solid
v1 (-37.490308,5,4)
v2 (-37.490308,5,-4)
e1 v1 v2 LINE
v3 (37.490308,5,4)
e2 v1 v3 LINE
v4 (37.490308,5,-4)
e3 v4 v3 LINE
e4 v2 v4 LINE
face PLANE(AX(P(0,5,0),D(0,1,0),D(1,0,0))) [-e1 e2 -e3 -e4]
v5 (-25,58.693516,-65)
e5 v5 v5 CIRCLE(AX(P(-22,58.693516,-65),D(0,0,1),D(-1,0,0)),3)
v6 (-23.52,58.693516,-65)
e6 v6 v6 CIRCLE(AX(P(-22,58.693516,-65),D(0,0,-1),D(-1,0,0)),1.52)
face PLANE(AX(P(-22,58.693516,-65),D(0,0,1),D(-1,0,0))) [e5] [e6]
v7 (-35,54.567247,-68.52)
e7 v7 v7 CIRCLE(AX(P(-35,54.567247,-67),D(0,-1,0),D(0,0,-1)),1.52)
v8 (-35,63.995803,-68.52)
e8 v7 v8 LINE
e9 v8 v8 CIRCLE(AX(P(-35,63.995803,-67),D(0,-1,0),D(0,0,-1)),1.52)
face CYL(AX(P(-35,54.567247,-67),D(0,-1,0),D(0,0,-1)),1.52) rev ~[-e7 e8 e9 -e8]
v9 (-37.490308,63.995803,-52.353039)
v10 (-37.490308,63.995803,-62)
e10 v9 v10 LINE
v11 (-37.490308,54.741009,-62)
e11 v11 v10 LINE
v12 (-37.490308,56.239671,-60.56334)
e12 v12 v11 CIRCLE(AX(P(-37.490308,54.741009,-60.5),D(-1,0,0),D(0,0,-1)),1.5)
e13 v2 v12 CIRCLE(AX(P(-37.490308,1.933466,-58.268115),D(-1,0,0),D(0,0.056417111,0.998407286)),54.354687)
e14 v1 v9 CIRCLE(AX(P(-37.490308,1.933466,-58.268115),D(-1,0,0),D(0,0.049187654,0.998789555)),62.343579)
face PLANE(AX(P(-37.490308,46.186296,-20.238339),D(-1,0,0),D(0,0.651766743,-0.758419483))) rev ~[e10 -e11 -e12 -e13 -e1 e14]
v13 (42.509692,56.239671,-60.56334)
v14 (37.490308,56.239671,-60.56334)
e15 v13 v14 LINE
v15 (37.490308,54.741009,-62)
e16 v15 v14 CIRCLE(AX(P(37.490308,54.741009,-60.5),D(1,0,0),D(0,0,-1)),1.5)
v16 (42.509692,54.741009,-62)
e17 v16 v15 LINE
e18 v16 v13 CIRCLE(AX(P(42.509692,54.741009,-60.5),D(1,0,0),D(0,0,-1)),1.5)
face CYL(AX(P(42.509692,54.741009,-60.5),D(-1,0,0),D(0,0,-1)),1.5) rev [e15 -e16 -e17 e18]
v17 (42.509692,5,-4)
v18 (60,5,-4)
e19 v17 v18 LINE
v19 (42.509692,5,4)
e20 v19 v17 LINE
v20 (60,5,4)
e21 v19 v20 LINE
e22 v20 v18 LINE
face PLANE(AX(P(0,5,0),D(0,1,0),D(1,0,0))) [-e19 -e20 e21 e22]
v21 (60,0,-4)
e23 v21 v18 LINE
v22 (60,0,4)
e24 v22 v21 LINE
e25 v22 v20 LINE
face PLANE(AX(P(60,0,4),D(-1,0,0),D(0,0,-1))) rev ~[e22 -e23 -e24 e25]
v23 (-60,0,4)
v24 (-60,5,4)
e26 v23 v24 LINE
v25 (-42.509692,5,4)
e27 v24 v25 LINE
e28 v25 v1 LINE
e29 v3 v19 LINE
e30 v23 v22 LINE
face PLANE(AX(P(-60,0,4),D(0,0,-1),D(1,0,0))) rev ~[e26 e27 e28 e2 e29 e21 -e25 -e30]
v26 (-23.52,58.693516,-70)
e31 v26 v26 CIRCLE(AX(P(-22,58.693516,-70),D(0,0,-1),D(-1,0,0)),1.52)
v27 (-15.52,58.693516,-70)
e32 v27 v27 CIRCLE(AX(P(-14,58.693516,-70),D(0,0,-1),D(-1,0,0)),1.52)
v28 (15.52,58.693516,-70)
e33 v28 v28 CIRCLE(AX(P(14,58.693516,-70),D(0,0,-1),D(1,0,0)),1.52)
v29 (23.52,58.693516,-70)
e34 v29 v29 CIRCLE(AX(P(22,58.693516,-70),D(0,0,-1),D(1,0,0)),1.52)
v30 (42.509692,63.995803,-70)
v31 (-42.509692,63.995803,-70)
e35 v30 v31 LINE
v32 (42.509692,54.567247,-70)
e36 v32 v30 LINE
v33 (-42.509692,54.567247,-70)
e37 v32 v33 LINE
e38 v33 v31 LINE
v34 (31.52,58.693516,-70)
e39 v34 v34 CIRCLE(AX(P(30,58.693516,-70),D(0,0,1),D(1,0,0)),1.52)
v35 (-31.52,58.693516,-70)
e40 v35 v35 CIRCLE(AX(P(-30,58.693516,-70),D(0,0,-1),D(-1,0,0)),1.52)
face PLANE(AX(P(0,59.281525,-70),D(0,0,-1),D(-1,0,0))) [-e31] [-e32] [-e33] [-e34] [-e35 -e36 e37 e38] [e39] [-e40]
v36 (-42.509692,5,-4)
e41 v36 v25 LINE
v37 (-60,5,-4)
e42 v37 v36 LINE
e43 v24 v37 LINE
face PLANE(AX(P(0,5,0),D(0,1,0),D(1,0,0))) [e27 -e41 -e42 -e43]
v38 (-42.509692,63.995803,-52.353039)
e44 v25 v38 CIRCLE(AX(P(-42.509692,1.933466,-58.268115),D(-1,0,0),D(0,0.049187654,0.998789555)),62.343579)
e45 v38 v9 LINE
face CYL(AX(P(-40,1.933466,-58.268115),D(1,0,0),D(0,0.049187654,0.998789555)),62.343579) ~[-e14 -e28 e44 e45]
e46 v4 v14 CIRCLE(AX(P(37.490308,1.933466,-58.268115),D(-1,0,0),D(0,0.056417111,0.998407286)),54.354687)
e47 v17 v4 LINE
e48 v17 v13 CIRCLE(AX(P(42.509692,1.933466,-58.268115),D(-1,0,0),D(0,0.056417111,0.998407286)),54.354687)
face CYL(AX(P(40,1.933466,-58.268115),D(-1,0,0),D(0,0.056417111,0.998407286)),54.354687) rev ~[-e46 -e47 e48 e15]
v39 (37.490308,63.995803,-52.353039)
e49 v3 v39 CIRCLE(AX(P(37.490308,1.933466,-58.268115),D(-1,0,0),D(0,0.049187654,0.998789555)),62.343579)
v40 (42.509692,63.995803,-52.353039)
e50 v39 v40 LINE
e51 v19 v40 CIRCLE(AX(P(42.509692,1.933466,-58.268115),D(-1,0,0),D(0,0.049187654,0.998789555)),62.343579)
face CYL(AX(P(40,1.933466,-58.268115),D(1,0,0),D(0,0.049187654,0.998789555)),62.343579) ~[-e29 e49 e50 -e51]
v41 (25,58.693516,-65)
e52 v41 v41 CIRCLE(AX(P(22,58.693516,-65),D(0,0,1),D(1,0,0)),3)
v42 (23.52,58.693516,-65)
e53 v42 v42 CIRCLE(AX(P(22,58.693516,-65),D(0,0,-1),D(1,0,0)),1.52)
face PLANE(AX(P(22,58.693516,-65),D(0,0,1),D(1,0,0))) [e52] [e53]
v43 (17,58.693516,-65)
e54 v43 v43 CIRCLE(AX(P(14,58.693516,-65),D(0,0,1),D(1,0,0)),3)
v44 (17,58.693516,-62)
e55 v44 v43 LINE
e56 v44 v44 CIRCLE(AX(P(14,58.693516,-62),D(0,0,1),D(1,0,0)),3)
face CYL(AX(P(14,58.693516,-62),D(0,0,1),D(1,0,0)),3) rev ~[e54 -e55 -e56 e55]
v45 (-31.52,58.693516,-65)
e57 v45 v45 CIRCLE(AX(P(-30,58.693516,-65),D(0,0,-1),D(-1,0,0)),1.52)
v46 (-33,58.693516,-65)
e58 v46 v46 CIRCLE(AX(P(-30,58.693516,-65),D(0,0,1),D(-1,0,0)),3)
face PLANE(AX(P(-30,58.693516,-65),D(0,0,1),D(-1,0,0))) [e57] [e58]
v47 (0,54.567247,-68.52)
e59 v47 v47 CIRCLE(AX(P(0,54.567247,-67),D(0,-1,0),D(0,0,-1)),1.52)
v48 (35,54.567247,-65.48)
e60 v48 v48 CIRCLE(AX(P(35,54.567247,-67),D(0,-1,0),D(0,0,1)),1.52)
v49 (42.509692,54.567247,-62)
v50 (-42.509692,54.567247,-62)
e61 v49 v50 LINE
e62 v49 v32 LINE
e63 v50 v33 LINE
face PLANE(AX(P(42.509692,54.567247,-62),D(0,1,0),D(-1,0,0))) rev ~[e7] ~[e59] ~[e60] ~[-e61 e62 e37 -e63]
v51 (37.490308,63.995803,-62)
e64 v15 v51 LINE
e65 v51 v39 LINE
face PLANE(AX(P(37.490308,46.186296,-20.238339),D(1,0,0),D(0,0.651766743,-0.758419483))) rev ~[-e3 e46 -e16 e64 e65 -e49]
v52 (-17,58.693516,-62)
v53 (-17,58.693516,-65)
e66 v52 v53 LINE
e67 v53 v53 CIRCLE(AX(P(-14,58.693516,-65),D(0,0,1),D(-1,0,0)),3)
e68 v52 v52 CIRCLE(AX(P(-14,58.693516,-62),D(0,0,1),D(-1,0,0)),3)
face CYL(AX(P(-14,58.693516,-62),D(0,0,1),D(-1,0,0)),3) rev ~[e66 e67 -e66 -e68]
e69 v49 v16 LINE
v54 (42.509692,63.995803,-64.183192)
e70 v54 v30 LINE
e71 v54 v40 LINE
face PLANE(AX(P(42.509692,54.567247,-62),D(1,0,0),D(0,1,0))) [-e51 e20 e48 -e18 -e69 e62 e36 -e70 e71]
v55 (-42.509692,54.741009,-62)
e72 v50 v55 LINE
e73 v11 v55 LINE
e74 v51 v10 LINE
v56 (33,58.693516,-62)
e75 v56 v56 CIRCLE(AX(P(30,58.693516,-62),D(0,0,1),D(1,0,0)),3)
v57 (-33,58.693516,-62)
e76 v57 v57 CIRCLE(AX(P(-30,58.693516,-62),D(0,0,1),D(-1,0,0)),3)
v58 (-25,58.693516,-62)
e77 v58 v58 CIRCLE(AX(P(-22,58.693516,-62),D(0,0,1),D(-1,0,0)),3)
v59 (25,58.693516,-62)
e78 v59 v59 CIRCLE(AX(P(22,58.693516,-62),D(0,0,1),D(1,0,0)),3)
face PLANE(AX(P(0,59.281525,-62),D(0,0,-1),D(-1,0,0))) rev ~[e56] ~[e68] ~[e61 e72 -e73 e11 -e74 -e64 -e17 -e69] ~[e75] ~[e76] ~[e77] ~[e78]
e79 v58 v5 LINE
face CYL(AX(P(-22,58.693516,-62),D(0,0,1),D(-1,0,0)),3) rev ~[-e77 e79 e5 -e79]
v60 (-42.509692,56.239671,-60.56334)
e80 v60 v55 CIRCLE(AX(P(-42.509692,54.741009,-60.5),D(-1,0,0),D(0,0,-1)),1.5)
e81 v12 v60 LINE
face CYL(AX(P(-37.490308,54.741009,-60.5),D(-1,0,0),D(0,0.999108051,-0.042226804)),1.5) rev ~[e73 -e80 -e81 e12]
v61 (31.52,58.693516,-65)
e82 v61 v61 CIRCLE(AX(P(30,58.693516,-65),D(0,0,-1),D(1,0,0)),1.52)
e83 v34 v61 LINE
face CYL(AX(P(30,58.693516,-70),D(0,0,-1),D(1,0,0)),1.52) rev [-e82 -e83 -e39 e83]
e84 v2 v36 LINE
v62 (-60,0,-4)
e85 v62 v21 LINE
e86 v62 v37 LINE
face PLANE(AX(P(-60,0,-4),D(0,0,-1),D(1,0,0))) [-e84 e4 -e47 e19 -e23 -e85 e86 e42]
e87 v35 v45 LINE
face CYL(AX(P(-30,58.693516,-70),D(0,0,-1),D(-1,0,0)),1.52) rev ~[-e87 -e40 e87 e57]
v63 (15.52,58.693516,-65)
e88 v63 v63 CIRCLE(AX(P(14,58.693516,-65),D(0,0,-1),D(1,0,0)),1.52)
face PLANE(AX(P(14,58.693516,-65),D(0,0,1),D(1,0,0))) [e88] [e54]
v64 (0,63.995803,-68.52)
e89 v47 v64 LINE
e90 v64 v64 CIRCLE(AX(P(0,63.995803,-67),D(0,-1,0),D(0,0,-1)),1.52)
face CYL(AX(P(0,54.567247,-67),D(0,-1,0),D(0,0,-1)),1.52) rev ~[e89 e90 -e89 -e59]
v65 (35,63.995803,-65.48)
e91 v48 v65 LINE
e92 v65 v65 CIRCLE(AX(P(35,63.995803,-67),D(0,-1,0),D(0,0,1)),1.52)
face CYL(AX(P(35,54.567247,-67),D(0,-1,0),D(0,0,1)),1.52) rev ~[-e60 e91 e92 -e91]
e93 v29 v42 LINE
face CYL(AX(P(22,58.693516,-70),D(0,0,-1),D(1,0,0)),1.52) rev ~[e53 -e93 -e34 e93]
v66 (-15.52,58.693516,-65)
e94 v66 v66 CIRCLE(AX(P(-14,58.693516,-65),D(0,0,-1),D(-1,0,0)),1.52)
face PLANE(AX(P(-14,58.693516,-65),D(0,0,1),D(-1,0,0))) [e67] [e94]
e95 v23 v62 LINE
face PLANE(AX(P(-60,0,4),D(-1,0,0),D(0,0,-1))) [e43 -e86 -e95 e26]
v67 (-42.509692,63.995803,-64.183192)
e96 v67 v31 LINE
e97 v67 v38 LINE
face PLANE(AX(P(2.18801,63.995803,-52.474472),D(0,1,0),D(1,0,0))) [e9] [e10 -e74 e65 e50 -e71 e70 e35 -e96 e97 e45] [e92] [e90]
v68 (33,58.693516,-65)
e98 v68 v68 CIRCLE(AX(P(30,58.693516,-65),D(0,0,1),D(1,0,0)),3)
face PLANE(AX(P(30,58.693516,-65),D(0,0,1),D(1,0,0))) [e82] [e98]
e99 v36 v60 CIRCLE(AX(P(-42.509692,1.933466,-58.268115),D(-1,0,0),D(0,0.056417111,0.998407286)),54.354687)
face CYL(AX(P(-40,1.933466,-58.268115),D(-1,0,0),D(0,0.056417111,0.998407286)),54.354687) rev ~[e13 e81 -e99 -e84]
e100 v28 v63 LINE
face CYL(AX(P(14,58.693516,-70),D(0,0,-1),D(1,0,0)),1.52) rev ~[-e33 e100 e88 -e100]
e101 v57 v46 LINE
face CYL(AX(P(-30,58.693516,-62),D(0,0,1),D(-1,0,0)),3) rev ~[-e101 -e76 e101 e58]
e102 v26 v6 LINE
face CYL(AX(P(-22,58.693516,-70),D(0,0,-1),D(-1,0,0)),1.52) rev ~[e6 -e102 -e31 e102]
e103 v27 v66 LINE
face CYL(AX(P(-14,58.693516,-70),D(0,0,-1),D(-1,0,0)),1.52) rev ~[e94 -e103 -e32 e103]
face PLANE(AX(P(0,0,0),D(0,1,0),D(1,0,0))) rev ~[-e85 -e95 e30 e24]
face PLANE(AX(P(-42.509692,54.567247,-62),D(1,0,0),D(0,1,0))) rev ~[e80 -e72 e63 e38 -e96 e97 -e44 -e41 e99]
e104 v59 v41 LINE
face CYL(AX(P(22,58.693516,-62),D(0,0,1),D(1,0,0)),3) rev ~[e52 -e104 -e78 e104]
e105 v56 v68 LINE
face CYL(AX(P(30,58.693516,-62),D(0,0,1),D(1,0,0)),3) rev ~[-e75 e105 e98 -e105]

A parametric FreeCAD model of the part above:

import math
import FreeCAD as App
import Part
import Sketcher
from FreeCAD import Vector


def edges_at(feature, points):
    """Names of the edges that pass closest to the given points."""
    edges = feature.Shape.Edges
    near = lambda p: min(range(len(edges)), key=lambda i: edges[i].distToShape(Part.Vertex(*p))[0])
    return sorted({f"Edge{near(p) + 1}" for p in points})

doc = App.newDocument("Part")
body = doc.addObject("PartDesign::Body", "Body")

sketch1 = body.newObject("Sketcher::SketchObject", "Sketch")
sketch1.AttachmentSupport = (doc.getObject("XZ_Plane"), [""])
sketch1.MapMode = "FlatFace"
sketch1.addGeometry([
    Part.LineSegment(Vector(-60, -4, 0), Vector(-60, 4, 0)),
    Part.LineSegment(Vector(-60, 4, 0), Vector(60, 4, 0)),
    Part.LineSegment(Vector(60, 4, 0), Vector(60, -4, 0)),
    Part.LineSegment(Vector(60, -4, 0), Vector(-60, -4, 0)),
], False)
sketch1.addConstraint([
    Sketcher.Constraint("Coincident", 0, 2, 1, 1),
    Sketcher.Constraint("Coincident", 1, 2, 2, 1),
    Sketcher.Constraint("Coincident", 2, 2, 3, 1),
    Sketcher.Constraint("Coincident", 3, 2, 0, 1),
    Sketcher.Constraint("Vertical", 0),
    Sketcher.Constraint("Horizontal", 1),
    Sketcher.Constraint("Vertical", 2),
    Sketcher.Constraint("Horizontal", 3),
    Sketcher.Constraint("Symmetric", 0, 2, 2, 2, -1, 1),
    Sketcher.Constraint("DistanceX", 1, 1, 1, 2, 120.0),
    Sketcher.Constraint("DistanceY", 0, 1, 0, 2, 8.0),
])
pad1 = body.newObject("PartDesign::Pad", "Pad")
pad1.Profile = sketch1
pad1.Length = 5
pad1.Reversed = True

sketch2 = body.newObject("Sketcher::SketchObject", "Sketch001")
sketch2.AttachmentSupport = (doc.getObject("XZ_Plane"), [""])
sketch2.MapMode = "FlatFace"
sketch2.AttachmentOffset = App.Placement(Vector(0, 0, -5), App.Rotation())
sketch2.addGeometry([
    Part.LineSegment(Vector(-42.509692, -4, 0), Vector(-42.509692, 4, 0)),
    Part.LineSegment(Vector(-42.509692, 4, 0), Vector(-37.490308, 4, 0)),
    Part.LineSegment(Vector(-37.490308, 4, 0), Vector(-37.490308, -4, 0)),
    Part.LineSegment(Vector(-37.490308, -4, 0), Vector(-42.509692, -4, 0)),
], False)
sketch2.addConstraint([
    Sketcher.Constraint("Coincident", 0, 2, 1, 1),
    Sketcher.Constraint("Coincident", 1, 2, 2, 1),
    Sketcher.Constraint("Coincident", 2, 2, 3, 1),
    Sketcher.Constraint("Coincident", 3, 2, 0, 1),
    Sketcher.Constraint("Vertical", 0),
    Sketcher.Constraint("Horizontal", 1),
    Sketcher.Constraint("Vertical", 2),
    Sketcher.Constraint("Horizontal", 3),
    Sketcher.Constraint("DistanceY", 0, 1, 0, 2, 8.0),
    Sketcher.Constraint("DistanceY", -1, 1, 0, 2, 4.0),
    Sketcher.Constraint("DistanceX", 1, 1, 1, 2, 5.019385),
    Sketcher.Constraint("DistanceX", 0, 2, -1, 1, 42.509692),
])

sketch3 = body.newObject("Sketcher::SketchObject", "Sketch002")
sketch3.AttachmentSupport = (doc.getObject("YZ_Plane"), [""])
sketch3.MapMode = "FlatFace"
sketch3.AttachmentOffset = App.Placement(Vector(0, 0, -40), App.Rotation())
sketch3.addGeometry(Part.ArcOfCircle(Part.Circle(Vector(1.933466, -58.268115, 0), Vector(0, 0, 1), 58.348752), math.radians(-5.637538), math.radians(86.987417)), False)
sketch3.addConstraint([
    Sketcher.Constraint("PointOnObject", 0, 2, -1),
    Sketcher.Constraint("DistanceX", -1, 1, 0, 1, 60.0),
    Sketcher.Constraint("DistanceY", 0, 1, -1, 1, 64.0),
    Sketcher.Constraint("DistanceX", -1, 1, 0, 2, 5.0),
    Sketcher.Constraint("Radius", 0, 58.348752),
])
doc.recompute()

additivepipe = body.newObject("PartDesign::AdditivePipe", "AdditivePipe")
additivepipe.Profile = sketch2
additivepipe.Spine = (sketch3, ["Edge1"])
doc.recompute()

linearpattern = body.newObject("PartDesign::LinearPattern", "LinearPattern")
linearpattern.Originals = [additivepipe]
linearpattern.Direction = (doc.getObject("X_Axis"), [""])
linearpattern.Mode = "offset"
linearpattern.Offset = 80
linearpattern.Occurrences = 2
body.Tip = linearpattern

sketch4 = body.newObject("Sketcher::SketchObject", "Sketch003")
sketch4.AttachmentSupport = (doc.getObject("XY_Plane"), [""])
sketch4.MapMode = "FlatFace"
sketch4.AttachmentOffset = App.Placement(Vector(0, 0, -64), App.Rotation())
sketch4.addGeometry([
    Part.LineSegment(Vector(42.509692, 63.995803, 0), Vector(42.509692, 54.567247, 0)),
    Part.LineSegment(Vector(42.509692, 54.567247, 0), Vector(-42.509692, 54.567247, 0)),
    Part.LineSegment(Vector(-42.509692, 54.567247, 0), Vector(-42.509692, 63.995803, 0)),
    Part.LineSegment(Vector(-42.509692, 63.995803, 0), Vector(42.509692, 63.995803, 0)),
], False)
sketch4.addConstraint([
    Sketcher.Constraint("Coincident", 0, 2, 1, 1),
    Sketcher.Constraint("Coincident", 1, 2, 2, 1),
    Sketcher.Constraint("Coincident", 2, 2, 3, 1),
    Sketcher.Constraint("Coincident", 3, 2, 0, 1),
    Sketcher.Constraint("Vertical", 0),
    Sketcher.Constraint("Horizontal", 1),
    Sketcher.Constraint("Vertical", 2),
    Sketcher.Constraint("Horizontal", 3),
    Sketcher.Constraint("DistanceX", 1, 2, 1, 1, 85.019385),
    Sketcher.Constraint("DistanceY", 0, 2, 0, 1, 9.428556),
    Sketcher.Constraint("DistanceX", -1, 1, 0, 2, 42.509692),
    Sketcher.Constraint("DistanceY", -1, 1, 0, 2, 54.567247),
])
pad2 = body.newObject("PartDesign::Pad", "Pad001")
pad2.Profile = sketch4
pad2.Type = "TwoLengths"
pad2.Length = 6
pad2.Length2 = 2
pad2.Reversed = True

sketch5 = body.newObject("Sketcher::SketchObject", "Sketch004")
sketch5.AttachmentSupport = (doc.getObject("XY_Plane"), [""])
sketch5.MapMode = "FlatFace"
sketch5.AttachmentOffset = App.Placement(Vector(0, 0, -70), App.Rotation())
sketch5.addGeometry(Part.Circle(Vector(-30, 58.693516, 0), Vector(0, 0, 1), 1.52), False)
sketch5.addConstraint([
    Sketcher.Constraint("Diameter", 0, 3.04),
    Sketcher.Constraint("DistanceX", 0, 3, -1, 1, 30.0),
    Sketcher.Constraint("DistanceY", -1, 1, 0, 3, 58.693516),
])
pocket1 = body.newObject("PartDesign::Pocket", "Pocket")
pocket1.Profile = sketch5
pocket1.Length = 18
pocket1.Reversed = True
doc.recompute()

linearpattern2 = body.newObject("PartDesign::LinearPattern", "LinearPattern001")
linearpattern2.Originals = [pocket1]
linearpattern2.Direction = (doc.getObject("X_Axis"), [""])
linearpattern2.Mode = "offset"
linearpattern2.Offset = 8
linearpattern2.Occurrences = 3
body.Tip = linearpattern2
doc.recompute()

mirrored = body.newObject("PartDesign::Mirrored", "Mirrored")
mirrored.Originals = [pocket1]
mirrored.MirrorPlane = (doc.getObject("YZ_Plane"), [""])
body.Tip = mirrored

sketch6 = body.newObject("Sketcher::SketchObject", "Sketch005")
sketch6.AttachmentSupport = (doc.getObject("XY_Plane"), [""])
sketch6.MapMode = "FlatFace"
sketch6.AttachmentOffset = App.Placement(Vector(0, 0, -70), App.Rotation())
sketch6.addGeometry(Part.Circle(Vector(22, 58.693516, 0), Vector(0, 0, 1), 1.52), False)
sketch6.addConstraint([
    Sketcher.Constraint("Diameter", 0, 3.04),
    Sketcher.Constraint("DistanceX", -1, 1, 0, 3, 22.0),
    Sketcher.Constraint("DistanceY", -1, 1, 0, 3, 58.693516),
])
pocket2 = body.newObject("PartDesign::Pocket", "Pocket001")
pocket2.Profile = sketch6
pocket2.Length = 18
pocket2.Reversed = True

sketch7 = body.newObject("Sketcher::SketchObject", "Sketch006")
sketch7.AttachmentSupport = (doc.getObject("XY_Plane"), [""])
sketch7.MapMode = "FlatFace"
sketch7.AttachmentOffset = App.Placement(Vector(0, 0, -70), App.Rotation())
sketch7.addGeometry(Part.Circle(Vector(14, 58.693516, 0), Vector(0, 0, 1), 1.52), False)
sketch7.addConstraint([
    Sketcher.Constraint("Diameter", 0, 3.04),
    Sketcher.Constraint("DistanceX", -1, 1, 0, 3, 14.0),
    Sketcher.Constraint("DistanceY", -1, 1, 0, 3, 58.693516),
])
pocket3 = body.newObject("PartDesign::Pocket", "Pocket002")
pocket3.Profile = sketch7
pocket3.Length = 18
pocket3.Reversed = True

sketch8 = body.newObject("Sketcher::SketchObject", "Sketch007")
sketch8.AttachmentSupport = (doc.getObject("XZ_Plane"), [""])
sketch8.MapMode = "FlatFace"
sketch8.AttachmentOffset = App.Placement(Vector(0, 0, -54.567247), App.Rotation())
sketch8.addGeometry([
    Part.Circle(Vector(0, -67, 0), Vector(0, 0, 1), 1.52),
    Part.Circle(Vector(-35, -67, 0), Vector(0, 0, 1), 1.52),
    Part.Circle(Vector(35, -67, 0), Vector(0, 0, 1), 1.52),
], False)
sketch8.addConstraint([
    Sketcher.Constraint("Equal", 0, 1),
    Sketcher.Constraint("Equal", 1, 2),
    Sketcher.Constraint("Symmetric", 1, 3, 2, 3, -2),
    Sketcher.Constraint("PointOnObject", 0, 3, -2),
    Sketcher.Constraint("Horizontal", 0, 3, 1, 3),
    Sketcher.Constraint("Diameter", 0, 3.04),
    Sketcher.Constraint("DistanceY", 0, 3, -1, 1, 67.0),
    Sketcher.Constraint("DistanceX", 1, 3, -1, 1, 35.0),
])
pocket4 = body.newObject("PartDesign::Pocket", "Pocket003")
pocket4.Profile = sketch8
pocket4.Length = 15

sketch9 = body.newObject("Sketcher::SketchObject", "Sketch008")
sketch9.AttachmentSupport = (doc.getObject("XZ_Plane"), [""])
sketch9.MapMode = "FlatFace"
sketch9.AttachmentOffset = App.Placement(Vector(0, 0, -63.995803), App.Rotation())
sketch9.addGeometry([
    Part.LineSegment(Vector(-66.156853, -72.893886, 0), Vector(-66.156853, -32.055058, 0)),
    Part.LineSegment(Vector(-66.156853, -32.055058, 0), Vector(70.532874, -32.055058, 0)),
    Part.LineSegment(Vector(70.532874, -32.055058, 0), Vector(70.532874, -72.893886, 0)),
    Part.LineSegment(Vector(70.532874, -72.893886, 0), Vector(-66.156853, -72.893886, 0)),
], False)
sketch9.addConstraint([
    Sketcher.Constraint("Coincident", 0, 2, 1, 1),
    Sketcher.Constraint("Coincident", 1, 2, 2, 1),
    Sketcher.Constraint("Coincident", 2, 2, 3, 1),
    Sketcher.Constraint("Coincident", 3, 2, 0, 1),
    Sketcher.Constraint("Vertical", 0),
    Sketcher.Constraint("Horizontal", 1),
    Sketcher.Constraint("Vertical", 2),
    Sketcher.Constraint("Horizontal", 3),
    Sketcher.Constraint("DistanceX", 1, 1, 1, 2, 136.689727),
    Sketcher.Constraint("DistanceY", 0, 1, 0, 2, 40.838827),
    Sketcher.Constraint("DistanceY", 0, 2, -1, 1, 32.055058),
    Sketcher.Constraint("DistanceX", 0, 2, -1, 1, 66.156853),
])
pocket5 = body.newObject("PartDesign::Pocket", "Pocket004")
pocket5.Profile = sketch9
pocket5.Length = 8

sketch10 = body.newObject("Sketcher::SketchObject", "Sketch009")
sketch10.AttachmentSupport = (doc.getObject("XY_Plane"), [""])
sketch10.MapMode = "FlatFace"
sketch10.AttachmentOffset = App.Placement(Vector(0, 0, -62), App.Rotation())
sketch10.addGeometry([
    Part.Circle(Vector(30, 58.693516, 0), Vector(0, 0, 1), 3),
    Part.Circle(Vector(22, 58.693516, 0), Vector(0, 0, 1), 3),
    Part.Circle(Vector(14, 58.693516, 0), Vector(0, 0, 1), 3),
    Part.Circle(Vector(-30, 58.693516, 0), Vector(0, 0, 1), 3),
    Part.Circle(Vector(-22, 58.693516, 0), Vector(0, 0, 1), 3),
    Part.Circle(Vector(-14, 58.693516, 0), Vector(0, 0, 1), 3),
], False)
sketch10.addConstraint([
    Sketcher.Constraint("Equal", 0, 1),
    Sketcher.Constraint("Equal", 1, 2),
    Sketcher.Constraint("Equal", 2, 3),
    Sketcher.Constraint("Equal", 3, 4),
    Sketcher.Constraint("Equal", 4, 5),
    Sketcher.Constraint("Symmetric", 0, 3, 3, 3, -2),
    Sketcher.Constraint("Symmetric", 1, 3, 4, 3, -2),
    Sketcher.Constraint("Symmetric", 2, 3, 5, 3, -2),
    Sketcher.Constraint("Horizontal", 0, 3, 1, 3),
    Sketcher.Constraint("Horizontal", 1, 3, 2, 3),
    Sketcher.Constraint("Diameter", 0, 6.0),
    Sketcher.Constraint("DistanceX", -1, 1, 0, 3, 30.0),
    Sketcher.Constraint("DistanceX", -1, 1, 1, 3, 22.0),
    Sketcher.Constraint("DistanceX", -1, 1, 2, 3, 14.0),
    Sketcher.Constraint("DistanceY", -1, 1, 0, 3, 58.693516),
])
pocket6 = body.newObject("PartDesign::Pocket", "Pocket005")
pocket6.Profile = sketch10
pocket6.Length = 3
doc.recompute()

fillet = body.newObject("PartDesign::Fillet", "Fillet")
fillet.Base = (pocket6, edges_at(pocket6, [(40, 56.16, -62)]))
fillet.Radius = 1.5
doc.recompute()

fillet2 = body.newObject("PartDesign::Fillet", "Fillet001")
fillet2.Base = (fillet, edges_at(fillet, [(-40, 56.16, -62)]))
fillet2.Radius = 1.5

doc.recompute()
